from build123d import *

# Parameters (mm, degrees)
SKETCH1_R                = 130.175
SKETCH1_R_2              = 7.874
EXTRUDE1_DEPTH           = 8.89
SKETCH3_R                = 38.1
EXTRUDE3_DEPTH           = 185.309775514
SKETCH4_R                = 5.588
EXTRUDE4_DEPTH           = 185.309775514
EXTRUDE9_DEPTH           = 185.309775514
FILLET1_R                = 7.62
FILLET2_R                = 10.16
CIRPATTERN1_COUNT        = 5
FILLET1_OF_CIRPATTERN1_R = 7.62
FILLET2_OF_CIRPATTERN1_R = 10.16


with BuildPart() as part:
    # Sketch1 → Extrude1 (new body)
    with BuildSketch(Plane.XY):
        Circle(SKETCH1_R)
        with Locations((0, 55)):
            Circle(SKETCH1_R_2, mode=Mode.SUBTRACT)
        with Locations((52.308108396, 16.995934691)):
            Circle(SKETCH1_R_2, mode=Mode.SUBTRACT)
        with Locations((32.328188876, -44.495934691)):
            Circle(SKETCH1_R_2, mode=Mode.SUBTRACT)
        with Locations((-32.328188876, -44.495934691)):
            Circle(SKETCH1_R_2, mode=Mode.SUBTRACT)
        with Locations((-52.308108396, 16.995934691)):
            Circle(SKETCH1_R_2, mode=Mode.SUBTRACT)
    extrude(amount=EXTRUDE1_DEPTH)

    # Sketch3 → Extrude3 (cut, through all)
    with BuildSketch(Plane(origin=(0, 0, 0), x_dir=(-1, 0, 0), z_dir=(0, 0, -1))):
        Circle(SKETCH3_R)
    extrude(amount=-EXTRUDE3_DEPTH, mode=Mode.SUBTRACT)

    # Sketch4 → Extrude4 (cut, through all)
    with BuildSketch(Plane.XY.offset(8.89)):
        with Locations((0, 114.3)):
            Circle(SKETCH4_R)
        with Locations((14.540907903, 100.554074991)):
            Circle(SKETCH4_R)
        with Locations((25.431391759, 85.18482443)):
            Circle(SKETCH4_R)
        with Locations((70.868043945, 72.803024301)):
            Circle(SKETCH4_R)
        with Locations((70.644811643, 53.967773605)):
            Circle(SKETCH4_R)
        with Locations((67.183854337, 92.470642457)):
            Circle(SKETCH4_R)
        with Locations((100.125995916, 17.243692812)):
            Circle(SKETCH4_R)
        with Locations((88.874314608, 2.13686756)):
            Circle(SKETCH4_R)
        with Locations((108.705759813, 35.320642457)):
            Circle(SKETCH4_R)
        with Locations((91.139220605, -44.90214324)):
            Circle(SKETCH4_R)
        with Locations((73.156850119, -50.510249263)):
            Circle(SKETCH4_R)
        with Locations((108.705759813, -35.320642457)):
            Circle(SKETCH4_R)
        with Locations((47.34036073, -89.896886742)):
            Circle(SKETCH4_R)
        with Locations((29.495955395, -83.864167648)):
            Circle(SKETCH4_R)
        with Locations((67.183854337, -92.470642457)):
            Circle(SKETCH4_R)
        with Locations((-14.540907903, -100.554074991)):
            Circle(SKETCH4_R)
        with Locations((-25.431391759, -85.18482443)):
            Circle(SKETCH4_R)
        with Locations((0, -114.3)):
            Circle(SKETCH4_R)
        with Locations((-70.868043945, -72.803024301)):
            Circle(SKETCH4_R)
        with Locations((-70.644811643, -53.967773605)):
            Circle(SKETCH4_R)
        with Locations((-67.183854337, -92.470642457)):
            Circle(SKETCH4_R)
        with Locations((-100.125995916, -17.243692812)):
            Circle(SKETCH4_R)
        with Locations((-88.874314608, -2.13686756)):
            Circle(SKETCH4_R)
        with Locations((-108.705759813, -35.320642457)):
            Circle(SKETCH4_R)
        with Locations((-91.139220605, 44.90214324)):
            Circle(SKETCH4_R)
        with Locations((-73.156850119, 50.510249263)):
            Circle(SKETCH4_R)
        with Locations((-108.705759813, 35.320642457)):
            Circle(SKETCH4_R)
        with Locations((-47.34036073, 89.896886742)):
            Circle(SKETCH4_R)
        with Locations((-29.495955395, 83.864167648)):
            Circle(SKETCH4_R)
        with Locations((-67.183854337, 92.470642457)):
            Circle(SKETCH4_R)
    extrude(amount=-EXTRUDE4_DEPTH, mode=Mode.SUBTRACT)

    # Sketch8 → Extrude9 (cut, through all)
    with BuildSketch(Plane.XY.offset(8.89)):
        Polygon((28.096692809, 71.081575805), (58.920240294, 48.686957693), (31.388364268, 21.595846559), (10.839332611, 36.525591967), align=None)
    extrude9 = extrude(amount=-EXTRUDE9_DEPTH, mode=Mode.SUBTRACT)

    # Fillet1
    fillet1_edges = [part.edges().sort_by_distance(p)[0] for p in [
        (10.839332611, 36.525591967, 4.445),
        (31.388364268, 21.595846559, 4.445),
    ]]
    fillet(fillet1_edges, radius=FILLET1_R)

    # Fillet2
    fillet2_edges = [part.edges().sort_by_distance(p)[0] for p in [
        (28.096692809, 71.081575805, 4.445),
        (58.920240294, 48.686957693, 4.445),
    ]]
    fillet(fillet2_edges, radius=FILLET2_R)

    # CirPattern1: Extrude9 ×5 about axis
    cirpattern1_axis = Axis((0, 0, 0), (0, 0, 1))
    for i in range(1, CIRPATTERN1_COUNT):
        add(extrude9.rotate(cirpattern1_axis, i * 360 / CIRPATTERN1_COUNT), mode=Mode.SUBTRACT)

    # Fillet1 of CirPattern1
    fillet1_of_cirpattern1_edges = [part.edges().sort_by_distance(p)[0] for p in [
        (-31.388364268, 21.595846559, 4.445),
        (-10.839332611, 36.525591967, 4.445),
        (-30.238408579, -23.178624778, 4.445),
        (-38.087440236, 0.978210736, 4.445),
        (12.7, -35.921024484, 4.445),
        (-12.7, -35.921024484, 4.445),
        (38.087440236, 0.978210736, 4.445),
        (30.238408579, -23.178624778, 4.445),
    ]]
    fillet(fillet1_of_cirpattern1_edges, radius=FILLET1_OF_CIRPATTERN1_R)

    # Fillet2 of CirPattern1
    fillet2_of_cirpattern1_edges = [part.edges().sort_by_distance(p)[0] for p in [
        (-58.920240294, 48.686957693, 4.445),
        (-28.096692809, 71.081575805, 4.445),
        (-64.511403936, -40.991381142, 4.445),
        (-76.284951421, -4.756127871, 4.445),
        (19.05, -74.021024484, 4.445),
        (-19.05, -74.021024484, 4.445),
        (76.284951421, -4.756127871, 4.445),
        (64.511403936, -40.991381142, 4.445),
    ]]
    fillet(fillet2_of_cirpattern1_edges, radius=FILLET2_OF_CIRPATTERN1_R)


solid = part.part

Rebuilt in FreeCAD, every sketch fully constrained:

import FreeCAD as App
import Part
import Sketcher
from FreeCAD import Vector
Q = App.Units.Quantity


def edges_at(feature, points):
    """Names of the edges that pass closest to the given points."""
    edges = feature.Shape.Edges
    near = lambda p: min(range(len(edges)), key=lambda i: edges[i].distToShape(Part.Vertex(*p))[0])
    return sorted({f"Edge{near(p) + 1}" for p in points})


def add_polygon(sketch, points):
    """Adds a closed chain of lines whose ends are joined by coincident constraints."""
    first, n = sketch.GeometryCount, len(points)
    for a, b in zip(points, points[1:] + points[:1]):
        sketch.addGeometry(Part.LineSegment(App.Vector(*a, 0), App.Vector(*b, 0)), False)
    for i in range(n):
        sketch.addConstraint(Sketcher.Constraint("Coincident", first + i, 2, first + (i + 1) % n, 1))

doc = App.newDocument("Part")
params = doc.addObject("Spreadsheet::Sheet", "Params")
for row, (alias, value) in enumerate([
    ("sketch1_diameter", "10.25 in"),
    ("sketch1_diameter2", "0.62 in"),
    ("pad1_length", "0.35 in"),
    ("sketch2_diameter", "3 in"),
    ("sketch3_diameter", "0.44 in"),
    ("sketch4_length", "1 in"),
    ("sketch4_length2", "1.5 in"),
    ("fillet_radius", "0.3 in"),
    ("fillet2_radius", "0.4 in"),
    ("fillet3_radius", "0.3 in"),
    ("fillet4_radius", "0.4 in"),
], start=1):
    params.set(f"A{row}", alias)
    params.set(f"B{row}", "=" + value)
    params.setAlias(f"B{row}", alias)

body = doc.addObject("PartDesign::Body", "Body")

sketch1 = body.newObject("Sketcher::SketchObject", "Sketch")
sketch1.AttachmentSupport = (doc.getObject("XY_Plane"), [""])
sketch1.MapMode = "FlatFace"
sketch1.addGeometry([
    Part.Circle(Vector(0, 0, 0), Vector(0, 0, 1), 130),
    Part.Circle(Vector(-32, -44, 0), Vector(0, 0, 1), 8),
    Part.Circle(Vector(32, -44, 0), Vector(0, 0, 1), 8),
    Part.Circle(Vector(-52, 17, 0), Vector(0, 0, 1), 8),
    Part.Circle(Vector(52, 17, 0), Vector(0, 0, 1), 8),
    Part.Circle(Vector(0, 55, 0), Vector(0, 0, 1), 8),
], False)
sketch1.addConstraint([
    Sketcher.Constraint("Coincident", 0, 3, -1, 1),
    Sketcher.Constraint("Equal", 1, 2),
    Sketcher.Constraint("Equal", 2, 3),
    Sketcher.Constraint("Equal", 3, 4),
    Sketcher.Constraint("Equal", 4, 5),
    Sketcher.Constraint("Symmetric", 1, 3, 2, 3, -2),
    Sketcher.Constraint("Symmetric", 3, 3, 4, 3, -2),
    Sketcher.Constraint("PointOnObject", 5, 3, -2),
    Sketcher.Constraint("Diameter", 0, Q("10.25 in")),
    Sketcher.Constraint("Diameter", 1, Q("0.62 in")),
    Sketcher.Constraint("DistanceY", -1, 1, 5, 3, Q("55 mm")),
    Sketcher.Constraint("DistanceX", 1, 3, -1, 1, Q("32.328189 mm")),
    Sketcher.Constraint("DistanceX", 3, 3, -1, 1, Q("52.308108 mm")),
    Sketcher.Constraint("DistanceY", 1, 3, 3, 3, Q("61.491869 mm")),
    Sketcher.Constraint("DistanceY", 1, 3, -1, 1, Q("44.495935 mm")),
])
sketch1.setExpression("Constraints[8]", "Params.sketch1_diameter")
sketch1.setExpression("Constraints[9]", "Params.sketch1_diameter2")
pad1 = body.newObject("PartDesign::Pad", "Pad")
pad1.Profile = sketch1
pad1.setExpression("Length", "Params.pad1_length")

sketch2 = body.newObject("Sketcher::SketchObject", "Sketch001")
sketch2.AttachmentSupport = (doc.getObject("XY_Plane"), [""])
sketch2.MapMode = "FlatFace"
sketch2.addGeometry(Part.Circle(Vector(0, 0, 0), Vector(0, 0, 1), 38), False)
sketch2.addConstraint([
    Sketcher.Constraint("Coincident", 0, 3, -1, 1),
    Sketcher.Constraint("Diameter", 0, Q("3 in")),
])
sketch2.setExpression("Constraints[1]", "Params.sketch2_diameter")
pocket1 = body.newObject("PartDesign::Pocket", "Pocket")
pocket1.Profile = sketch2
pocket1.Type = "ThroughAll"
pocket1.Reversed = True

sketch3 = body.newObject("Sketcher::SketchObject", "Sketch002")
sketch3.AttachmentSupport = (doc.getObject("XY_Plane"), [""])
sketch3.MapMode = "FlatFace"
sketch3.AttachmentOffset = App.Placement(Vector(0, 0, 0.35 * 25.4), App.Rotation())
sketch3.addGeometry([
    Part.Circle(Vector(0, 114, 0), Vector(0, 0, 1), 6),
    Part.Circle(Vector(15, 101, 0), Vector(0, 0, 1), 6),
    Part.Circle(Vector(25, 85, 0), Vector(0, 0, 1), 6),
    Part.Circle(Vector(71, 73, 0), Vector(0, 0, 1), 6),
    Part.Circle(Vector(71, 54, 0), Vector(0, 0, 1), 6),
    Part.Circle(Vector(67, 92, 0), Vector(0, 0, 1), 6),
    Part.Circle(Vector(100, 17, 0), Vector(0, 0, 1), 6),
    Part.Circle(Vector(89, 2, 0), Vector(0, 0, 1), 6),
    Part.Circle(Vector(109, 35, 0), Vector(0, 0, 1), 6),
    Part.Circle(Vector(91, -45, 0), Vector(0, 0, 1), 6),
    Part.Circle(Vector(73, -51, 0), Vector(0, 0, 1), 6),
    Part.Circle(Vector(109, -35, 0), Vector(0, 0, 1), 6),
    Part.Circle(Vector(47, -90, 0), Vector(0, 0, 1), 6),
    Part.Circle(Vector(29, -84, 0), Vector(0, 0, 1), 6),
    Part.Circle(Vector(67, -92, 0), Vector(0, 0, 1), 6),
    Part.Circle(Vector(-15, -101, 0), Vector(0, 0, 1), 6),
    Part.Circle(Vector(-25, -85, 0), Vector(0, 0, 1), 6),
    Part.Circle(Vector(0, -114, 0), Vector(0, 0, 1), 6),
    Part.Circle(Vector(-71, -73, 0), Vector(0, 0, 1), 6),
    Part.Circle(Vector(-71, -54, 0), Vector(0, 0, 1), 6),
    Part.Circle(Vector(-67, -92, 0), Vector(0, 0, 1), 6),
    Part.Circle(Vector(-100, -17, 0), Vector(0, 0, 1), 6),
    Part.Circle(Vector(-89, -2, 0), Vector(0, 0, 1), 6),
    Part.Circle(Vector(-109, -35, 0), Vector(0, 0, 1), 6),
    Part.Circle(Vector(-91, 45, 0), Vector(0, 0, 1), 6),
    Part.Circle(Vector(-73, 51, 0), Vector(0, 0, 1), 6),
    Part.Circle(Vector(-109, 35, 0), Vector(0, 0, 1), 6),
    Part.Circle(Vector(-47, 90, 0), Vector(0, 0, 1), 6),
    Part.Circle(Vector(-29, 84, 0), Vector(0, 0, 1), 6),
    Part.Circle(Vector(-67, 92, 0), Vector(0, 0, 1), 6),
], False)
sketch3.addConstraint([
    Sketcher.Constraint("Equal", 0, 1),
    Sketcher.Constraint("Equal", 1, 2),
    Sketcher.Constraint("Equal", 2, 3),
    Sketcher.Constraint("Equal", 3, 4),
    Sketcher.Constraint("Equal", 4, 5),
    Sketcher.Constraint("Equal", 5, 6),
    Sketcher.Constraint("Equal", 6, 7),
    Sketcher.Constraint("Equal", 7, 8),
    Sketcher.Constraint("Equal", 8, 9),
    Sketcher.Constraint("Equal", 9, 10),
    Sketcher.Constraint("Equal", 10, 11),
    Sketcher.Constraint("Equal", 11, 12),
    Sketcher.Constraint("Equal", 12, 13),
    Sketcher.Constraint("Equal", 13, 14),
    Sketcher.Constraint("Equal", 14, 15),
    Sketcher.Constraint("Equal", 15, 16),
    Sketcher.Constraint("Equal", 16, 17),
    Sketcher.Constraint("Equal", 17, 18),
    Sketcher.Constraint("Equal", 18, 19),
    Sketcher.Constraint("Equal", 19, 20),
    Sketcher.Constraint("Equal", 20, 21),
    Sketcher.Constraint("Equal", 21, 22),
    Sketcher.Constraint("Equal", 22, 23),
    Sketcher.Constraint("Equal", 23, 24),
    Sketcher.Constraint("Equal", 24, 25),
    Sketcher.Constraint("Equal", 25, 26),
    Sketcher.Constraint("Equal", 26, 27),
    Sketcher.Constraint("Equal", 27, 28),
    Sketcher.Constraint("Equal", 28, 29),
    Sketcher.Constraint("Symmetric", 1, 3, 15, 3, -1, 1),
    Sketcher.Constraint("Symmetric", 2, 3, 16, 3, -1, 1),
    Sketcher.Constraint("Symmetric", 0, 3, 17, 3, -1, 1),
    Sketcher.Constraint("Symmetric", 3, 3, 18, 3, -1, 1),
    Sketcher.Constraint("Symmetric", 4, 3, 19, 3, -1, 1),
    Sketcher.Constraint("Symmetric", 5, 3, 20, 3, -1, 1),
    Sketcher.Constraint("Symmetric", 6, 3, 21, 3, -1, 1),
    Sketcher.Constraint("Symmetric", 7, 3, 22, 3, -1, 1),
    Sketcher.Constraint("Symmetric", 8, 3, 23, 3, -1, 1),
    Sketcher.Constraint("Symmetric", 9, 3, 24, 3, -1, 1),
    Sketcher.Constraint("Symmetric", 10, 3, 25, 3, -1, 1),
    Sketcher.Constraint("Symmetric", 11, 3, 26, 3, -1, 1),
    Sketcher.Constraint("Symmetric", 12, 3, 27, 3, -1, 1),
    Sketcher.Constraint("Symmetric", 13, 3, 28, 3, -1, 1),
    Sketcher.Constraint("Symmetric", 14, 3, 29, 3, -1, 1),
    Sketcher.Constraint("Symmetric", 14, 3, 20, 3, -2),
    Sketcher.Constraint("Symmetric", 11, 3, 23, 3, -2),
    Sketcher.Constraint("PointOnObject", 0, 3, -2),
    Sketcher.Constraint("Diameter", 0, Q("0.44 in")),
    Sketcher.Constraint("DistanceY", -1, 1, 0, 3, Q("4.5 in")),
    Sketcher.Constraint("DistanceY", 8, 3, 5, 3, Q("2.25 in")),
    Sketcher.Constraint("DistanceY", 3, 3, 2, 3, Q("12.3818 mm")),
    Sketcher.Constraint("DistanceY", 4, 3, 1, 3, Q("46.586301 mm")),
    Sketcher.Constraint("DistanceY", 9, 3, 11, 3, Q("9.581501 mm")),
    Sketcher.Constraint("DistanceX", 12, 3, 11, 3, Q("61.365399 mm")),
    Sketcher.Constraint("DistanceX", 13, 3, 14, 3, Q("37.687899 mm")),
    Sketcher.Constraint("DistanceX", 18, 3, 13, 3, Q("100.363999 mm")),
    Sketcher.Constraint("DistanceX", -1, 1, 2, 3, Q("25.431392 mm")),
    Sketcher.Constraint("DistanceX", -1, 1, 4, 3, Q("70.644812 mm")),
    Sketcher.Constraint("DistanceX", -1, 1, 8, 3, Q("108.70576 mm")),
    Sketcher.Constraint("DistanceX", -1, 1, 9, 3, Q("91.139221 mm")),
    Sketcher.Constraint("DistanceX", -1, 1, 10, 3, Q("73.15685 mm")),
    Sketcher.Constraint("DistanceY", 10, 3, -1, 1, Q("50.510249 mm")),
    Sketcher.Constraint("DistanceY", 2, 3, 1, 3, Q("15.369251 mm")),
    Sketcher.Constraint("DistanceX", 5, 3, 3, 3, Q("3.68419 mm")),
    Sketcher.Constraint("DistanceY", 3, 3, 5, 3, Q("19.667618 mm")),
    Sketcher.Constraint("DistanceY", 6, 3, 4, 3, Q("36.724081 mm")),
    Sketcher.Constraint("DistanceX", 3, 3, 6, 3, Q("29.257952 mm")),
    Sketcher.Constraint("DistanceX", 1, 3, 6, 3, Q("85.585088 mm")),
    Sketcher.Constraint("DistanceX", 7, 3, 6, 3, Q("11.251681 mm")),
    Sketcher.Constraint("DistanceY", 9, 3, 7, 3, Q("47.039011 mm")),
    Sketcher.Constraint("DistanceY", 10, 3, 8, 3, Q("85.830892 mm")),
    Sketcher.Constraint("DistanceY", 12, 3, 6, 3, Q("107.14058 mm")),
    Sketcher.Constraint("DistanceY", 12, 3, 13, 3, Q("6.032719 mm")),
])
sketch3.setExpression("Constraints[47]", "Params.sketch3_diameter")
pocket2 = body.newObject("PartDesign::Pocket", "Pocket001")
pocket2.Profile = sketch3
pocket2.Type = "ThroughAll"

sketch4 = body.newObject("Sketcher::SketchObject", "Sketch003")
sketch4.AttachmentSupport = (doc.getObject("XY_Plane"), [""])
sketch4.MapMode = "FlatFace"
sketch4.AttachmentOffset = App.Placement(Vector(0, 0, 0.35 * 25.4), App.Rotation())
add_polygon(sketch4, [(59, 49), (28, 71), (11, 37), (31, 22)])
sketch4.addConstraint([
    Sketcher.Constraint("Parallel", 0, 2),
    Sketcher.Constraint("Equal", 1, 3),
    Sketcher.Constraint("Distance", 2, Q("1 in")),
    Sketcher.Constraint("Angle", 0, Q("144 deg")),
    Sketcher.Constraint("Distance", 0, Q("1.5 in")),
    Sketcher.Constraint("DistanceY", -1, 1, 1, 2, Q("36.525592 mm")),
    Sketcher.Constraint("DistanceX", -1, 1, 3, 2, Q("58.92024 mm")),
    Sketcher.Constraint("DistanceX", 1, 2, 0, 2, Q("17.25736 mm")),
])
sketch4.setExpression("Constraints[6]", "Params.sketch4_length")
sketch4.setExpression("Constraints[8]", "Params.sketch4_length2")
pocket3 = body.newObject("PartDesign::Pocket", "Pocket002")
pocket3.Profile = sketch4
pocket3.Type = "ThroughAll"
doc.recompute()

fillet = body.newObject("PartDesign::Fillet", "Fillet")
fillet.Base = (pocket3, edges_at(pocket3, [(10.839, 36.526, 4.445), (31.388, 21.596, 4.445)]))
fillet.setExpression("Radius", "Params.fillet_radius")
doc.recompute()

fillet2 = body.newObject("PartDesign::Fillet", "Fillet001")
fillet2.Base = (fillet, edges_at(fillet, [(28.097, 71.082, 4.445), (58.92, 48.687, 4.445)]))
fillet2.setExpression("Radius", "Params.fillet2_radius")
doc.recompute()

polarpattern = body.newObject("PartDesign::PolarPattern", "PolarPattern")
polarpattern.Originals = [pocket3]
polarpattern.Axis = (doc.getObject("Z_Axis"), [""])
polarpattern.Angle = 360
polarpattern.Occurrences = 5
body.Tip = polarpattern
doc.recompute()

fillet3 = body.newObject("PartDesign::Fillet", "Fillet002")
fillet3.Base = (polarpattern, edges_at(polarpattern, [
    (-31.388, 21.596, 4.445),
    (-10.839, 36.526, 4.445),
    (-30.238, -23.179, 4.445),
    (-38.087, 0.978, 4.445),
    (12.7, -35.921, 4.445),
    (-12.7, -35.921, 4.445),
    (38.087, 0.978, 4.445),
    (30.238, -23.179, 4.445),
]))
fillet3.setExpression("Radius", "Params.fillet3_radius")
doc.recompute()

fillet4 = body.newObject("PartDesign::Fillet", "Fillet003")
fillet4.Base = (fillet3, edges_at(fillet3, [
    (-58.92, 48.687, 4.445),
    (-28.097, 71.082, 4.445),
    (-64.511, -40.991, 4.445),
    (-76.285, -4.756, 4.445),
    (19.05, -74.021, 4.445),
    (-19.05, -74.021, 4.445),
    (76.285, -4.756, 4.445),
    (64.511, -40.991, 4.445),
]))
fillet4.setExpression("Radius", "Params.fillet4_radius")

doc.recompute()
